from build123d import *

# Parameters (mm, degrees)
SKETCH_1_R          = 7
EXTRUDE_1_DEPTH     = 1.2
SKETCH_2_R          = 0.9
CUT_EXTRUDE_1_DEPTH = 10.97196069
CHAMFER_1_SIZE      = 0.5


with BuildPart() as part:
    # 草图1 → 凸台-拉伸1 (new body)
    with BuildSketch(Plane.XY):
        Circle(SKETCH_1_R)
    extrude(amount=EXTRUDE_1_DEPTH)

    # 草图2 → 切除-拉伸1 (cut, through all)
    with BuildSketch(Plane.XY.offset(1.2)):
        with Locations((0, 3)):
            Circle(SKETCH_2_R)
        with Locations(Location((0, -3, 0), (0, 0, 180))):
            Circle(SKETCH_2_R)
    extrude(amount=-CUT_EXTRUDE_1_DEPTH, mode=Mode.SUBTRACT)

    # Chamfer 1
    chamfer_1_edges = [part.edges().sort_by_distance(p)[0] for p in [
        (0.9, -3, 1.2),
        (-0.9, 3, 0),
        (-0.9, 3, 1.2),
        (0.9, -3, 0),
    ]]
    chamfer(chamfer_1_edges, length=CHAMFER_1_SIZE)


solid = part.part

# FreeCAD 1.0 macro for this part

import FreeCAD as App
import Part
import Sketcher
from FreeCAD import Vector


def edges_at(feature, points):
    """Names of the edges that pass closest to the given points."""
    edges = feature.Shape.Edges
    near = lambda p: min(range(len(edges)), key=lambda i: edges[i].distToShape(Part.Vertex(*p))[0])
    return sorted({f"Edge{near(p) + 1}" for p in points})

doc = App.newDocument("Part")
body = doc.addObject("PartDesign::Body", "Body")

# Sketch on XY plane
sketch1 = body.newObject("Sketcher::SketchObject", "Sketch")
sketch1.AttachmentSupport = (doc.getObject("XY_Plane"), [""])
sketch1.MapMode = "FlatFace"
sketch1.addGeometry(Part.Circle(Vector(0, 0, 0), Vector(0, 0, 1), 7), False)
sketch1.addConstraint([
    Sketcher.Constraint("Coincident", 0, 3, -1, 1),
    Sketcher.Constraint("Diameter", 0, 14.0),
])
pad1 = body.newObject("PartDesign::Pad", "Pad")
pad1.Profile = sketch1
pad1.Length = 1.2

# Sketch on XY plane
sketch2 = body.newObject("Sketcher::SketchObject", "Sketch001")
sketch2.AttachmentSupport = (doc.getObject("XY_Plane"), [""])
sketch2.MapMode = "FlatFace"
sketch2.AttachmentOffset = App.Placement(Vector(0, 0, 1.2), App.Rotation())
sketch2.addGeometry([
    Part.Circle(Vector(0, 3, 0), Vector(0, 0, 1), 0.9),
    Part.Circle(Vector(0, -3, 0), Vector(0, 0, 1), 0.9),
], False)
sketch2.addConstraint([
    Sketcher.Constraint("Equal", 0, 1),
    Sketcher.Constraint("Symmetric", 0, 3, 1, 3, -1, 1),
    Sketcher.Constraint("PointOnObject", 0, 3, -2),
    Sketcher.Constraint("Diameter", 0, 1.8),
    Sketcher.Constraint("DistanceY", -1, 1, 0, 3, 3.0),
])
pocket1 = body.newObject("PartDesign::Pocket", "Pocket")
pocket1.Profile = sketch2
pocket1.Type = "ThroughAll"
doc.recompute()

chamfer = body.newObject("PartDesign::Chamfer", "Chamfer")
chamfer.Base = (pocket1, edges_at(pocket1, [
    (0.9, -3, 1.2),
    (-0.9, 3, 0),
    (-0.9, 3, 1.2),
    (0.9, -3, 0),
]))
chamfer.Size = 0.5

doc.recompute()
